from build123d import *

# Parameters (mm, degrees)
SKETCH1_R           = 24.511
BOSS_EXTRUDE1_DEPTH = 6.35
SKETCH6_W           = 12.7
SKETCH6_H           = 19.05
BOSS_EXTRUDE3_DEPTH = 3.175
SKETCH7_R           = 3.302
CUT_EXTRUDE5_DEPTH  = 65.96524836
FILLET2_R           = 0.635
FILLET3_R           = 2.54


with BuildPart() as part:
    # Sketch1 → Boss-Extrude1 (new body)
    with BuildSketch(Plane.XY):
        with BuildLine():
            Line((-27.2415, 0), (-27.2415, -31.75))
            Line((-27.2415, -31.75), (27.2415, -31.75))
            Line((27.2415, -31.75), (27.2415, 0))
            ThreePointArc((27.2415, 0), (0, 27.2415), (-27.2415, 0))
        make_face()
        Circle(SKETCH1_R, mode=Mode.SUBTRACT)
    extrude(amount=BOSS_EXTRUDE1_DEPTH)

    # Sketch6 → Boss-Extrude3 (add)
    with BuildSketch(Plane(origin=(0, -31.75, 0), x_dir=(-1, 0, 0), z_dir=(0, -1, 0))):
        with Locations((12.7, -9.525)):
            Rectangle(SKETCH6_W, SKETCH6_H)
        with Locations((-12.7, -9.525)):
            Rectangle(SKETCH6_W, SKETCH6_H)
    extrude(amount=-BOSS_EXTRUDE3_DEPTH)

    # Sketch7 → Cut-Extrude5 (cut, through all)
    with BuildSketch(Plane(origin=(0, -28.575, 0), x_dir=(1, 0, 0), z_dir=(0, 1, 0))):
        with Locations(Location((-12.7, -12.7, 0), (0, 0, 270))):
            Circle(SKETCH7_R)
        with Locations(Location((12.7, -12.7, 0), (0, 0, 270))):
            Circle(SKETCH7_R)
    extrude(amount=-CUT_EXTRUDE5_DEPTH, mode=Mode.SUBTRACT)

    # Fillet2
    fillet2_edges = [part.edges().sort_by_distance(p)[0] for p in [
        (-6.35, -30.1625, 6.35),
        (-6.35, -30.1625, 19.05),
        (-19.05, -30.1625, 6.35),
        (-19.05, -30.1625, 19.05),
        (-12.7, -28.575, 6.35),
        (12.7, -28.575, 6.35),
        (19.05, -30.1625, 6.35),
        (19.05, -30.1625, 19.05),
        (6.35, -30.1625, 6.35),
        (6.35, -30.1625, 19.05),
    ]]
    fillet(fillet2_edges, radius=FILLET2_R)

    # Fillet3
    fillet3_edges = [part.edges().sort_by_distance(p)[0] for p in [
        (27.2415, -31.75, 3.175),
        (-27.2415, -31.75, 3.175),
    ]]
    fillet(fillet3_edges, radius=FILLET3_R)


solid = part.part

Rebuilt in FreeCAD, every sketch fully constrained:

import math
import FreeCAD as App
import Part
import Sketcher
Q = App.Units.Quantity


def edges_at(feature, points):
    """Names of the edges that pass closest to the given points."""
    edges = feature.Shape.Edges
    near = lambda p: min(range(len(edges)), key=lambda i: edges[i].distToShape(Part.Vertex(*p))[0])
    return sorted({f"Edge{near(p) + 1}" for p in points})

doc = App.newDocument("Part")
body = doc.addObject("PartDesign::Body", "Body")

# Sketch on XY plane
sketch1 = body.newObject("Sketcher::SketchObject", "Sketch")
sketch1.AttachmentSupport = (doc.getObject("XY_Plane"), [""])
sketch1.MapMode = "FlatFace"
sketch1.addGeometry([
    Part.LineSegment(App.Vector(-27, 0, 0), App.Vector(-27, -32, 0)),  # 0
    Part.LineSegment(App.Vector(-27, -32, 0), App.Vector(27, -32, 0)),  # 1
    Part.LineSegment(App.Vector(27, -32, 0), App.Vector(27, 0, 0)),  # 2
    Part.ArcOfCircle(Part.Circle(App.Vector(0, 0, 0), App.Vector(0, 0, 1), 27), math.radians(0), math.radians(180)),  # 3
    Part.Circle(App.Vector(0, 0, 0), App.Vector(0, 0, 1), 25),  # 4
], False)
sketch1.addConstraint([
    Sketcher.Constraint("Coincident", 0, 2, 1, 1),
    Sketcher.Constraint("Coincident", 1, 2, 2, 1),
    Sketcher.Constraint("Tangent", 2, 2, 3, 1),
    Sketcher.Constraint("Tangent", 3, 2, 0, 1),
    Sketcher.Constraint("Vertical", 0),
    Sketcher.Constraint("Horizontal", 1),
    Sketcher.Constraint("Vertical", 2),
    Sketcher.Constraint("Coincident", 3, 3, -1, 1),
    Sketcher.Constraint("Coincident", 4, 3, -1, 1),
    Sketcher.Constraint("Diameter", 4, Q("1.93 in")),
    Sketcher.Constraint("DistanceY", 0, 2, 0, 1, Q("1.25 in")),
    Sketcher.Constraint("Radius", 3, Q("1.0725 in")),
])
pad1 = body.newObject("PartDesign::Pad", "Pad")
pad1.Profile = sketch1
pad1.Length = Q("0.25 in")

# Sketch on XZ plane
sketch2 = body.newObject("Sketcher::SketchObject", "Sketch001")
sketch2.AttachmentSupport = (doc.getObject("XZ_Plane"), [""])
sketch2.MapMode = "FlatFace"
sketch2.AttachmentOffset = App.Placement(App.Vector(0, 0, 1.25 * 25.4), App.Rotation())
sketch2.addGeometry([
    Part.LineSegment(App.Vector(-6, 0, 0), App.Vector(-6, 19, 0)),  # 0
    Part.LineSegment(App.Vector(-6, 19, 0), App.Vector(-19, 19, 0)),  # 1
    Part.LineSegment(App.Vector(-19, 19, 0), App.Vector(-19, 0, 0)),  # 2
    Part.LineSegment(App.Vector(-19, 0, 0), App.Vector(-6, 0, 0)),  # 3
    Part.LineSegment(App.Vector(19, 0, 0), App.Vector(19, 19, 0)),  # 4
    Part.LineSegment(App.Vector(19, 19, 0), App.Vector(6, 19, 0)),  # 5
    Part.LineSegment(App.Vector(6, 19, 0), App.Vector(6, 0, 0)),  # 6
    Part.LineSegment(App.Vector(6, 0, 0), App.Vector(19, 0, 0)),  # 7
], False)
sketch2.addConstraint([
    Sketcher.Constraint("Coincident", 0, 2, 1, 1),
    Sketcher.Constraint("Coincident", 1, 2, 2, 1),
    Sketcher.Constraint("Coincident", 2, 2, 3, 1),
    Sketcher.Constraint("Coincident", 3, 2, 0, 1),
    Sketcher.Constraint("Coincident", 4, 2, 5, 1),
    Sketcher.Constraint("Coincident", 5, 2, 6, 1),
    Sketcher.Constraint("Coincident", 6, 2, 7, 1),
    Sketcher.Constraint("Coincident", 7, 2, 4, 1),
    Sketcher.Constraint("Vertical", 0),
    Sketcher.Constraint("Horizontal", 1),
    Sketcher.Constraint("Vertical", 2),
    Sketcher.Constraint("Horizontal", 3),
    Sketcher.Constraint("Vertical", 4),
    Sketcher.Constraint("Horizontal", 5),
    Sketcher.Constraint("Vertical", 6),
    Sketcher.Constraint("Horizontal", 7),
    Sketcher.Constraint("Symmetric", 3, 2, 6, 2, -1, 1),
    Sketcher.Constraint("Symmetric", 1, 2, 4, 2, -2),
    Sketcher.Constraint("PointOnObject", 2, 2, -1),
    Sketcher.Constraint("DistanceX", 1, 2, 1, 1, Q("0.5 in")),
    Sketcher.Constraint("DistanceX", 0, 2, 4, 2, Q("1 in")),
    Sketcher.Constraint("DistanceY", 0, 1, 0, 2, Q("0.75 in")),
])
pad2 = body.newObject("PartDesign::Pad", "Pad001")
pad2.Profile = sketch2
pad2.Length = Q("0.125 in")
pad2.Reversed = True

# Sketch on XZ plane
sketch3 = body.newObject("Sketcher::SketchObject", "Sketch002")
sketch3.AttachmentSupport = (doc.getObject("XZ_Plane"), [""])
sketch3.MapMode = "FlatFace"
sketch3.AttachmentOffset = App.Placement(App.Vector(0, 0, 1.125 * 25.4), App.Rotation())
sketch3.addGeometry([
    Part.Circle(App.Vector(-12.7, 12.7, 0), App.Vector(0, 0, 1), 3.3),
    Part.Circle(App.Vector(12.7, 12.7, 0), App.Vector(0, 0, 1), 3.3),
], False)
sketch3.addConstraint([
    Sketcher.Constraint("Equal", 0, 1),
    Sketcher.Constraint("Symmetric", 0, 3, 1, 3, -2),
    Sketcher.Constraint("Diameter", 0, Q("0.26 in")),
    Sketcher.Constraint("DistanceX", 0, 3, 1, 3, Q("1 in")),
    Sketcher.Constraint("DistanceY", -1, 1, 0, 3, Q("0.5 in")),
])
pocket1 = body.newObject("PartDesign::Pocket", "Pocket")
pocket1.Profile = sketch3
pocket1.Type = "ThroughAll"
pocket1.Reversed = True
doc.recompute()

fillet = body.newObject("PartDesign::Fillet", "Fillet")
fillet.Base = (pocket1, edges_at(pocket1, [
    (-6.35, -30.163, 6.35),
    (-6.35, -30.163, 19.05),
    (-19.05, -30.163, 6.35),
    (-19.05, -30.163, 19.05),
    (-12.7, -28.575, 6.35),
    (12.7, -28.575, 6.35),
    (19.05, -30.163, 6.35),
    (19.05, -30.163, 19.05),
    (6.35, -30.163, 6.35),
    (6.35, -30.163, 19.05),
]))
fillet.Radius = Q("0.025 in")
doc.recompute()

fillet2 = body.newObject("PartDesign::Fillet", "Fillet001")
fillet2.Base = (fillet, edges_at(fillet, [(27.241, -31.75, 3.175), (-27.241, -31.75, 3.175)]))
fillet2.Radius = Q("0.1 in")

doc.recompute()
